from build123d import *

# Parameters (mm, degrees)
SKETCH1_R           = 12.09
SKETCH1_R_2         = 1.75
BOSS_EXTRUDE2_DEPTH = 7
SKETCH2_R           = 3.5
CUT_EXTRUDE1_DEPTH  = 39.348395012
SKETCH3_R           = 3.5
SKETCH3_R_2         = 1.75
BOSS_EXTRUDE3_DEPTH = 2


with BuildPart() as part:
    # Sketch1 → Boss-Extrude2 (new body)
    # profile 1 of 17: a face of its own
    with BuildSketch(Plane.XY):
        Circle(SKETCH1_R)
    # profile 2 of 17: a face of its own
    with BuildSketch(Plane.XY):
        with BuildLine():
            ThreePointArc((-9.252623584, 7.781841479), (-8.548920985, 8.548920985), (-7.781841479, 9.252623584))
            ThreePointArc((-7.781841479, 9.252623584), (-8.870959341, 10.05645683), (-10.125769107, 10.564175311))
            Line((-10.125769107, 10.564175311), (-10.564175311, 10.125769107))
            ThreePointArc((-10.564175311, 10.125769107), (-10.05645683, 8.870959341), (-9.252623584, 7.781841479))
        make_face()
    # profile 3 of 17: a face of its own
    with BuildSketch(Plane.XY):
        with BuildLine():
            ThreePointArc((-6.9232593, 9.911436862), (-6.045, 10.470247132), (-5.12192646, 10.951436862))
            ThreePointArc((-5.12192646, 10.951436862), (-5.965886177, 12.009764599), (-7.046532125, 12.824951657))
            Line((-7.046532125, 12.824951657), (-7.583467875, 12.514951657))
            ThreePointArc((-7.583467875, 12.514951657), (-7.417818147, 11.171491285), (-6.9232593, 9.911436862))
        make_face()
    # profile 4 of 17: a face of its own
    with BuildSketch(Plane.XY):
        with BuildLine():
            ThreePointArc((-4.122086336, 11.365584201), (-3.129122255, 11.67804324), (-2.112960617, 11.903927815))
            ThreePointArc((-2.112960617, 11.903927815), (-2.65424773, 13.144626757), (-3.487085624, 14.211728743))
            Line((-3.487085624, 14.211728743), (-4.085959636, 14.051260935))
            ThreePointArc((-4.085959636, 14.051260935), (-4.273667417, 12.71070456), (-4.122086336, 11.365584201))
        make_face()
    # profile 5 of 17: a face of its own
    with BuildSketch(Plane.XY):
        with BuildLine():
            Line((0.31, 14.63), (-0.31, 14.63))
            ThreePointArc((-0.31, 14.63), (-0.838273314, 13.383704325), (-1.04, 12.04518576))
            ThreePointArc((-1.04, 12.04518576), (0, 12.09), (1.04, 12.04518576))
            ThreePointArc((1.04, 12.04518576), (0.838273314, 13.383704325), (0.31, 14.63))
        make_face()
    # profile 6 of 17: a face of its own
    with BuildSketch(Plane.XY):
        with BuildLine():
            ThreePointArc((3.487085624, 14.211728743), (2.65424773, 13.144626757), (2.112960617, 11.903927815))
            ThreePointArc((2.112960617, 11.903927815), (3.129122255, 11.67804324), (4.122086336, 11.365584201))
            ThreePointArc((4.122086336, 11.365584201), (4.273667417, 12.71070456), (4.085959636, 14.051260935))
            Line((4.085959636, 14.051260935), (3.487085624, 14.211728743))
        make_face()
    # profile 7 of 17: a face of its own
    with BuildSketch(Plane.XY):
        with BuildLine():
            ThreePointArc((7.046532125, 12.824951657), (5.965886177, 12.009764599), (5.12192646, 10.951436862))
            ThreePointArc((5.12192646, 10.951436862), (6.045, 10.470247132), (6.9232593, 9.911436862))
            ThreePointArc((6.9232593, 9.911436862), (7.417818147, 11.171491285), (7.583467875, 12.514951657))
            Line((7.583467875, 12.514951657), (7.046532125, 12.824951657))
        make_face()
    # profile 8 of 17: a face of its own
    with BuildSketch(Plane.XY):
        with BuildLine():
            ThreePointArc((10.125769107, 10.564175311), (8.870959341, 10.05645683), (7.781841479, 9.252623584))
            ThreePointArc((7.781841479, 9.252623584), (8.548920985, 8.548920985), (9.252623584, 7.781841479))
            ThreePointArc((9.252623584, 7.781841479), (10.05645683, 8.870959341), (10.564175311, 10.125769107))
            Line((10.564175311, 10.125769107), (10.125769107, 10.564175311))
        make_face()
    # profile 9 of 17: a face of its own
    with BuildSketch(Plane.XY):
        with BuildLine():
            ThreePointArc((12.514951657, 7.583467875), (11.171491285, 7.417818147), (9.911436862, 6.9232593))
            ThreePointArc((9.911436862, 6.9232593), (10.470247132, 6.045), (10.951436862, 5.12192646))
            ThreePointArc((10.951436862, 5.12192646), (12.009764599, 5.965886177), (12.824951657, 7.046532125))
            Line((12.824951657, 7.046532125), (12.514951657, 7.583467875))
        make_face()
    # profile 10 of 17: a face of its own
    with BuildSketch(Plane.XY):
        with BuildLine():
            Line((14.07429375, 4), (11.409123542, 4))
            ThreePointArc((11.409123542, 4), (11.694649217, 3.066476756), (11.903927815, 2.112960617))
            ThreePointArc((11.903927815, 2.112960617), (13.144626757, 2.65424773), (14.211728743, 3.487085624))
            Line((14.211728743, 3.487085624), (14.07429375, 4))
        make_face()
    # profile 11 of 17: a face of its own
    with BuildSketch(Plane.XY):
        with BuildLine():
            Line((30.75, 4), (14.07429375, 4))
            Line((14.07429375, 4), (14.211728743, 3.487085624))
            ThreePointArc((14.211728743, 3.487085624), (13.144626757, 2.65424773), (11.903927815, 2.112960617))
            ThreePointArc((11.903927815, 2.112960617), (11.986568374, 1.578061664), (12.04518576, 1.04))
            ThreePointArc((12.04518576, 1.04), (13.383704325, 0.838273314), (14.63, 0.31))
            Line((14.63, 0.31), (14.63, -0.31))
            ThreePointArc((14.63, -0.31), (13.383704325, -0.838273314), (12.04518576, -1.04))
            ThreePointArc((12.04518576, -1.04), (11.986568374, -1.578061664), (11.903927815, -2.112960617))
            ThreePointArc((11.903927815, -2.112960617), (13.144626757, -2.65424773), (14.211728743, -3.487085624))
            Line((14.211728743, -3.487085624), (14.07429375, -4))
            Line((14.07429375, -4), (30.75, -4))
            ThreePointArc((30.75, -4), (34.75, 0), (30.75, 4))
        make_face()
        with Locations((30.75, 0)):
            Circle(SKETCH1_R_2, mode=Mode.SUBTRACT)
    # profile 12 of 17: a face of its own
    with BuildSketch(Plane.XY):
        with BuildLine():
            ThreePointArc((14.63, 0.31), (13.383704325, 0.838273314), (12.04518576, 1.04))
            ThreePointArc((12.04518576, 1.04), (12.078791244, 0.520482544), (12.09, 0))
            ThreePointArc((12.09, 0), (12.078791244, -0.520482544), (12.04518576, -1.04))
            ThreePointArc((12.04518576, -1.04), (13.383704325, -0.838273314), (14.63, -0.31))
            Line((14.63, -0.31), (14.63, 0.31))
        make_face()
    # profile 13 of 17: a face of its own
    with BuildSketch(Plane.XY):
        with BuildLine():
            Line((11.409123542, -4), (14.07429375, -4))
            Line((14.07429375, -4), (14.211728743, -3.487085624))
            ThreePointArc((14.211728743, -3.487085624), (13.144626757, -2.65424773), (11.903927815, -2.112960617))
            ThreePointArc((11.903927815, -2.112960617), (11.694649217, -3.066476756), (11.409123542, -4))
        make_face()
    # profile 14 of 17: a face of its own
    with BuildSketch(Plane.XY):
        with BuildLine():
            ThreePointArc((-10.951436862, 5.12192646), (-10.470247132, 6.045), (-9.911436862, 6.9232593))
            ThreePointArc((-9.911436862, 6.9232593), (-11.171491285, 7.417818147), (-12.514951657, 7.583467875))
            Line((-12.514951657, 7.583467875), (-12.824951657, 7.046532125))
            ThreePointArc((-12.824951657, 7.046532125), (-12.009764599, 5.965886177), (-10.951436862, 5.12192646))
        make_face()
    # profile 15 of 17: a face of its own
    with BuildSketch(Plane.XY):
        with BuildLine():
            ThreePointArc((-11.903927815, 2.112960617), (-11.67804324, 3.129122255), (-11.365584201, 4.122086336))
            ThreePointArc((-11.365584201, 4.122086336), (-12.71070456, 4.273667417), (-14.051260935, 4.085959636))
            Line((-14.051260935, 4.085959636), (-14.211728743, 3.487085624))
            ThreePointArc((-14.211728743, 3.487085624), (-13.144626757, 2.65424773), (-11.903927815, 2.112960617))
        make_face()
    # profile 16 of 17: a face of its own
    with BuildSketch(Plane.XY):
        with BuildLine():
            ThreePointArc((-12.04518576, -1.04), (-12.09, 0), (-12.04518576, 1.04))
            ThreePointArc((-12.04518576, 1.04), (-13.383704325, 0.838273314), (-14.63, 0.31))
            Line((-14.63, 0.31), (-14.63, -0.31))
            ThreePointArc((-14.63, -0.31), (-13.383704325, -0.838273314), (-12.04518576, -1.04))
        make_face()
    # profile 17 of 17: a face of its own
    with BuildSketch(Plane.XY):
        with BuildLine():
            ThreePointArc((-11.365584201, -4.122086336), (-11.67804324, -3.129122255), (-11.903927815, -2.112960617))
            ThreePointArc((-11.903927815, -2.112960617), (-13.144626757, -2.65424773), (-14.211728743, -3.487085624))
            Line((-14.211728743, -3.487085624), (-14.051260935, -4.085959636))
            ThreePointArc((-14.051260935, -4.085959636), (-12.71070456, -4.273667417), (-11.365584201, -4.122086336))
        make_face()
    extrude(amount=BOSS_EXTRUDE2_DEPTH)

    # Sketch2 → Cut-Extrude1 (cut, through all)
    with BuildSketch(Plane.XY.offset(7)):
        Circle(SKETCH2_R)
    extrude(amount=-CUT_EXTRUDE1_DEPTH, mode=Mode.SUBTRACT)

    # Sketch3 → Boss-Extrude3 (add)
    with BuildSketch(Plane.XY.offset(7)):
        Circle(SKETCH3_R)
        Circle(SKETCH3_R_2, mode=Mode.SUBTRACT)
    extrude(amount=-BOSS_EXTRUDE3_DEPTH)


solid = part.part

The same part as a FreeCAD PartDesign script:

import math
import FreeCAD as App
import Part
import Sketcher
Q = App.Units.Quantity

doc = App.newDocument("Part")
body = doc.addObject("PartDesign::Body", "Body")

sketch1 = doc.addObject("Sketcher::SketchObject", "Sketch")
body.addObject(sketch1)
sketch1.AttachmentSupport = (doc.XY_Plane, [""])
sketch1.MapMode = "FlatFace"
sketch1.addGeometry([
    Part.ArcOfCircle(Part.Circle(App.Vector(0, 0, 0), App.Vector(0, 0, 1), 12.1), math.radians(19.32), math.radians(25.07)),
    Part.ArcOfCircle(Part.Circle(App.Vector(8.1, 9.7, 0), App.Vector(0, 0, 1), 5.4), math.radians(-59), math.radians(-30)),
    Part.LineSegment(App.Vector(12.8, 7, 0), App.Vector(12.5, 7.6, 0)),
    Part.ArcOfCircle(Part.Circle(App.Vector(12.5, 2.2, 0), App.Vector(0, 0, 1), 5.4), math.radians(90), math.radians(119)),
    Part.ArcOfCircle(Part.Circle(App.Vector(0, 0, 0), App.Vector(0, 0, 1), 12.1), math.radians(34.93), math.radians(40.07)),
    Part.ArcOfCircle(Part.Circle(App.Vector(5.3, 11.5, 0), App.Vector(0, 0, 1), 5.4), math.radians(-44), math.radians(-15)),
    Part.LineSegment(App.Vector(10.6, 10.1, 0), App.Vector(10.1, 10.6, 0)),
    Part.ArcOfCircle(Part.Circle(App.Vector(11.5, 5.3, 0), App.Vector(0, 0, 1), 5.4), math.radians(105), math.radians(134)),
    Part.ArcOfCircle(Part.Circle(App.Vector(0, 0, 0), App.Vector(0, 0, 1), 12.1), math.radians(49.93), math.radians(55.07)),
    Part.ArcOfCircle(Part.Circle(App.Vector(2.2, 12.5, 0), App.Vector(0, 0, 1), 5.4), math.radians(-29), math.radians(0)),
    Part.LineSegment(App.Vector(7.6, 12.5, 0), App.Vector(7, 12.8, 0)),
    Part.ArcOfCircle(Part.Circle(App.Vector(9.7, 8.1, 0), App.Vector(0, 0, 1), 5.4), math.radians(120), math.radians(149)),
    Part.ArcOfCircle(Part.Circle(App.Vector(0, 0, 0), App.Vector(0, 0, 1), 12.1), math.radians(64.93), math.radians(70.07)),
    Part.ArcOfCircle(Part.Circle(App.Vector(-1.1, 12.6, 0), App.Vector(0, 0, 1), 5.4), math.radians(-14), math.radians(15)),
    Part.LineSegment(App.Vector(4.1, 14.1, 0), App.Vector(3.5, 14.2, 0)),
    Part.ArcOfCircle(Part.Circle(App.Vector(7.3, 10.4, 0), App.Vector(0, 0, 1), 5.4), math.radians(135), math.radians(164)),
    Part.ArcOfCircle(Part.Circle(App.Vector(0, 0, 0), App.Vector(0, 0, 1), 12.1), math.radians(79.93), math.radians(85.07)),
    Part.ArcOfCircle(Part.Circle(App.Vector(-4.4, 11.9, 0), App.Vector(0, 0, 1), 5.4), math.radians(1), math.radians(30)),
    Part.LineSegment(App.Vector(0.3, 14.6, 0), App.Vector(-0.3, 14.6, 0)),
    Part.ArcOfCircle(Part.Circle(App.Vector(4.4, 11.9, 0), App.Vector(0, 0, 1), 5.4), math.radians(150), math.radians(179)),
    Part.ArcOfCircle(Part.Circle(App.Vector(0, 0, 0), App.Vector(0, 0, 1), 12.1), math.radians(94.93), math.radians(100.07)),
    Part.ArcOfCircle(Part.Circle(App.Vector(-7.3, 10.4, 0), App.Vector(0, 0, 1), 5.4), math.radians(16), math.radians(45)),
    Part.LineSegment(App.Vector(-3.5, 14.2, 0), App.Vector(-4.1, 14.1, 0)),
    Part.ArcOfCircle(Part.Circle(App.Vector(1.1, 12.6, 0), App.Vector(0, 0, 1), 5.4), math.radians(165), math.radians(194)),
    Part.ArcOfCircle(Part.Circle(App.Vector(0, 0, 0), App.Vector(0, 0, 1), 12.1), math.radians(109.93), math.radians(115.07)),
    Part.ArcOfCircle(Part.Circle(App.Vector(-9.7, 8.1, 0), App.Vector(0, 0, 1), 5.4), math.radians(31), math.radians(60)),
    Part.LineSegment(App.Vector(-7, 12.8, 0), App.Vector(-7.6, 12.5, 0)),
    Part.ArcOfCircle(Part.Circle(App.Vector(-2.2, 12.5, 0), App.Vector(0, 0, 1), 5.4), math.radians(180), math.radians(209)),
    Part.ArcOfCircle(Part.Circle(App.Vector(0, 0, 0), App.Vector(0, 0, 1), 12.1), math.radians(124.93), math.radians(130.07)),
    Part.ArcOfCircle(Part.Circle(App.Vector(-11.5, 5.3, 0), App.Vector(0, 0, 1), 5.4), math.radians(46), math.radians(75)),
    Part.LineSegment(App.Vector(-10.1, 10.6, 0), App.Vector(-10.6, 10.1, 0)),
    Part.ArcOfCircle(Part.Circle(App.Vector(-5.3, 11.5, 0), App.Vector(0, 0, 1), 5.4), math.radians(-165), math.radians(-136)),
    Part.ArcOfCircle(Part.Circle(App.Vector(0, 0, 0), App.Vector(0, 0, 1), 12.1), math.radians(139.93), math.radians(145.07)),
    Part.ArcOfCircle(Part.Circle(App.Vector(-12.5, 2.2, 0), App.Vector(0, 0, 1), 5.4), math.radians(61), math.radians(90)),
    Part.LineSegment(App.Vector(-12.5, 7.6, 0), App.Vector(-12.8, 7, 0)),
    Part.ArcOfCircle(Part.Circle(App.Vector(-8.1, 9.7, 0), App.Vector(0, 0, 1), 5.4), math.radians(-150), math.radians(-121)),
    Part.ArcOfCircle(Part.Circle(App.Vector(0, 0, 0), App.Vector(0, 0, 1), 12.1), math.radians(154.93), math.radians(160.07)),
    Part.ArcOfCircle(Part.Circle(App.Vector(-12.6, -1.1, 0), App.Vector(0, 0, 1), 5.4), math.radians(76), math.radians(105)),
    Part.LineSegment(App.Vector(-14.1, 4.1, 0), App.Vector(-14.2, 3.5, 0)),
    Part.ArcOfCircle(Part.Circle(App.Vector(-10.4, 7.3, 0), App.Vector(0, 0, 1), 5.4), math.radians(-135), math.radians(-106)),
    Part.ArcOfCircle(Part.Circle(App.Vector(0, 0, 0), App.Vector(0, 0, 1), 12.1), math.radians(169.93), math.radians(175.07)),
    Part.ArcOfCircle(Part.Circle(App.Vector(-11.9, -4.4, 0), App.Vector(0, 0, 1), 5.4), math.radians(91), math.radians(120)),
    Part.LineSegment(App.Vector(-14.6, 0.3, 0), App.Vector(-14.6, -0.3, 0)),
    Part.ArcOfCircle(Part.Circle(App.Vector(-11.9, 4.4, 0), App.Vector(0, 0, 1), 5.4), math.radians(-120), math.radians(-91)),
    Part.ArcOfCircle(Part.Circle(App.Vector(0, 0, 0), App.Vector(0, 0, 1), 12.1), math.radians(-175.07), math.radians(-169.93)),
    Part.ArcOfCircle(Part.Circle(App.Vector(-10.4, -7.3, 0), App.Vector(0, 0, 1), 5.4), math.radians(106), math.radians(135)),
    Part.LineSegment(App.Vector(-14.2, -3.5, 0), App.Vector(-14.1, -4.1, 0)),
    Part.ArcOfCircle(Part.Circle(App.Vector(-12.6, 1.1, 0), App.Vector(0, 0, 1), 5.4), math.radians(-105), math.radians(-76)),
    Part.ArcOfCircle(Part.Circle(App.Vector(0, 0, 0), App.Vector(0, 0, 1), 12.1), math.radians(-160), math.radians(-19)),
    Part.LineSegment(App.Vector(11.4, -4, 0), App.Vector(30.8, -4, 0)),
    Part.ArcOfCircle(Part.Circle(App.Vector(30.8, 0, 0), App.Vector(0, 0, 1), 4), math.radians(-90), math.radians(90)),
    Part.LineSegment(App.Vector(30.8, 4, 0), App.Vector(11.4, 4, 0)),
    Part.Circle(App.Vector(30.8, 0, 0), App.Vector(0, 0, 1), 1.8),
], False)
sketch1.addConstraint([
    Sketcher.Constraint("Coincident", 0, 2, 1, 1),
    Sketcher.Constraint("Coincident", 1, 2, 2, 1),
    Sketcher.Constraint("Coincident", 2, 2, 3, 1),
    Sketcher.Constraint("Coincident", 3, 2, 4, 1),
    Sketcher.Constraint("Coincident", 4, 2, 5, 1),
    Sketcher.Constraint("Coincident", 5, 2, 6, 1),
    Sketcher.Constraint("Coincident", 6, 2, 7, 1),
    Sketcher.Constraint("Coincident", 7, 2, 8, 1),
    Sketcher.Constraint("Coincident", 8, 2, 9, 1),
    Sketcher.Constraint("Coincident", 9, 2, 10, 1),
    Sketcher.Constraint("Coincident", 10, 2, 11, 1),
    Sketcher.Constraint("Coincident", 11, 2, 12, 1),
    Sketcher.Constraint("Coincident", 12, 2, 13, 1),
    Sketcher.Constraint("Coincident", 13, 2, 14, 1),
    Sketcher.Constraint("Coincident", 14, 2, 15, 1),
    Sketcher.Constraint("Coincident", 15, 2, 16, 1),
    Sketcher.Constraint("Coincident", 16, 2, 17, 1),
    Sketcher.Constraint("Coincident", 17, 2, 18, 1),
    Sketcher.Constraint("Coincident", 18, 2, 19, 1),
    Sketcher.Constraint("Coincident", 19, 2, 20, 1),
    Sketcher.Constraint("Coincident", 20, 2, 21, 1),
    Sketcher.Constraint("Coincident", 21, 2, 22, 1),
    Sketcher.Constraint("Coincident", 22, 2, 23, 1),
    Sketcher.Constraint("Coincident", 23, 2, 24, 1),
    Sketcher.Constraint("Coincident", 24, 2, 25, 1),
    Sketcher.Constraint("Coincident", 25, 2, 26, 1),
    Sketcher.Constraint("Coincident", 26, 2, 27, 1),
    Sketcher.Constraint("Coincident", 27, 2, 28, 1),
    Sketcher.Constraint("Coincident", 28, 2, 29, 1),
    Sketcher.Constraint("Coincident", 29, 2, 30, 1),
    Sketcher.Constraint("Coincident", 30, 2, 31, 1),
    Sketcher.Constraint("Coincident", 31, 2, 32, 1),
    Sketcher.Constraint("Coincident", 32, 2, 33, 1),
    Sketcher.Constraint("Coincident", 33, 2, 34, 1),
    Sketcher.Constraint("Coincident", 34, 2, 35, 1),
    Sketcher.Constraint("Coincident", 35, 2, 36, 1),
    Sketcher.Constraint("Coincident", 36, 2, 37, 1),
    Sketcher.Constraint("Coincident", 37, 2, 38, 1),
    Sketcher.Constraint("Coincident", 38, 2, 39, 1),
    Sketcher.Constraint("Coincident", 39, 2, 40, 1),
    Sketcher.Constraint("Coincident", 40, 2, 41, 1),
    Sketcher.Constraint("Coincident", 41, 2, 42, 1),
    Sketcher.Constraint("Coincident", 42, 2, 43, 1),
    Sketcher.Constraint("Coincident", 43, 2, 44, 1),
    Sketcher.Constraint("Coincident", 44, 2, 45, 1),
    Sketcher.Constraint("Coincident", 45, 2, 46, 1),
    Sketcher.Constraint("Coincident", 46, 2, 47, 1),
    Sketcher.Constraint("Coincident", 47, 2, 48, 1),
    Sketcher.Constraint("Coincident", 48, 2, 49, 1),
    Sketcher.Constraint("Tangent", 49, 2, 50, 1),
    Sketcher.Constraint("Tangent", 50, 2, 51, 1),
    Sketcher.Constraint("Coincident", 51, 2, 0, 1),
    Sketcher.Constraint("Horizontal", 18),
    Sketcher.Constraint("Vertical", 42),
    Sketcher.Constraint("Horizontal", 49),
    Sketcher.Constraint("Horizontal", 51),
    Sketcher.Constraint("Coincident", 0, 3, -1, 1),
    Sketcher.Constraint("Coincident", 4, 3, -1, 1),
    Sketcher.Constraint("Coincident", 8, 3, -1, 1),
    Sketcher.Constraint("Coincident", 12, 3, -1, 1),
    Sketcher.Constraint("Coincident", 16, 3, -1, 1),
    Sketcher.Constraint("Coincident", 20, 3, -1, 1),
    Sketcher.Constraint("Coincident", 24, 3, -1, 1),
    Sketcher.Constraint("Coincident", 28, 3, -1, 1),
    Sketcher.Constraint("Coincident", 32, 3, -1, 1),
    Sketcher.Constraint("Coincident", 36, 3, -1, 1),
    Sketcher.Constraint("Coincident", 40, 3, -1, 1),
    Sketcher.Constraint("Coincident", 44, 3, -1, 1),
    Sketcher.Constraint("Coincident", 48, 3, -1, 1),
    Sketcher.Constraint("Coincident", 52, 3, 50, 3),
    Sketcher.Constraint("Equal", 1, 3),
    Sketcher.Constraint("Equal", 0, 4),
    Sketcher.Constraint("Equal", 3, 5),
    Sketcher.Constraint("Equal", 5, 7),
    Sketcher.Constraint("Equal", 4, 8),
    Sketcher.Constraint("Equal", 7, 9),
    Sketcher.Constraint("Equal", 9, 11),
    Sketcher.Constraint("Equal", 8, 12),
    Sketcher.Constraint("Equal", 11, 13),
    Sketcher.Constraint("Equal", 13, 15),
    Sketcher.Constraint("Equal", 12, 16),
    Sketcher.Constraint("Equal", 15, 17),
    Sketcher.Constraint("Equal", 17, 19),
    Sketcher.Constraint("Equal", 16, 20),
    Sketcher.Constraint("Equal", 19, 21),
    Sketcher.Constraint("Equal", 21, 23),
    Sketcher.Constraint("Equal", 20, 24),
    Sketcher.Constraint("Equal", 23, 25),
    Sketcher.Constraint("Equal", 25, 27),
    Sketcher.Constraint("Equal", 24, 28),
    Sketcher.Constraint("Equal", 27, 29),
    Sketcher.Constraint("Equal", 29, 31),
    Sketcher.Constraint("Equal", 28, 32),
    Sketcher.Constraint("Equal", 31, 33),
    Sketcher.Constraint("Equal", 33, 35),
    Sketcher.Constraint("Equal", 32, 36),
    Sketcher.Constraint("Equal", 35, 37),
    Sketcher.Constraint("Equal", 37, 39),
    Sketcher.Constraint("Equal", 36, 40),
    Sketcher.Constraint("Equal", 39, 41),
    Sketcher.Constraint("Equal", 41, 43),
    Sketcher.Constraint("Equal", 40, 44),
    Sketcher.Constraint("Equal", 43, 45),
    Sketcher.Constraint("Equal", 45, 47),
    Sketcher.Constraint("Equal", 44, 48),
    Sketcher.Constraint("Symmetric", 17, 3, 19, 3, -2),
    Sketcher.Constraint("Symmetric", 15, 3, 21, 3, -2),
    Sketcher.Constraint("Symmetric", 13, 3, 23, 3, -2),
    Sketcher.Constraint("Symmetric", 11, 3, 25, 3, -2),
    Sketcher.Constraint("Symmetric", 9, 3, 27, 3, -2),
    Sketcher.Constraint("Symmetric", 7, 3, 29, 3, -2),
    Sketcher.Constraint("Symmetric", 5, 3, 31, 3, -2),
    Sketcher.Constraint("Symmetric", 3, 3, 33, 3, -2),
    Sketcher.Constraint("Symmetric", 1, 3, 35, 3, -2),
    Sketcher.Constraint("Symmetric", 41, 3, 43, 3, -1),
    Sketcher.Constraint("Symmetric", 39, 3, 45, 3, -1),
    Sketcher.Constraint("Symmetric", 37, 3, 47, 3, -1),
    Sketcher.Constraint("PointOnObject", 50, 3, -1),
    Sketcher.Constraint("Perpendicular", 2, 26),
    Sketcher.Constraint("Perpendicular", 6, 30),
    Sketcher.Constraint("Perpendicular", 10, 34),
    Sketcher.Constraint("Perpendicular", 14, 38),
    Sketcher.Constraint("Perpendicular", 22, 46),
    Sketcher.Constraint("Horizontal", 14, 2, 21, 2),
    Sketcher.Constraint("Horizontal", 13, 2, 22, 2),
    Sketcher.Constraint("Horizontal", 10, 2, 25, 2),
    Sketcher.Constraint("Horizontal", 9, 2, 26, 2),
    Sketcher.Constraint("Horizontal", 6, 2, 29, 2),
    Sketcher.Constraint("Horizontal", 5, 2, 30, 2),
    Sketcher.Constraint("Horizontal", 1, 2, 34, 2),
    Sketcher.Constraint("Vertical", 38, 2, 45, 2),
    Sketcher.Constraint("Equal", 18, 42),
    Sketcher.Constraint("Equal", 2, 6),
    Sketcher.Constraint("Equal", 6, 10),
    Sketcher.Constraint("Equal", 10, 14),
    Sketcher.Constraint("Equal", 34, 38),
    Sketcher.Constraint("Radius", 50, 4.0),
    Sketcher.Constraint("Diameter", 52, 3.5),
    Sketcher.Constraint("Radius", 1, 5.4),
    Sketcher.Constraint("Angle", 2, Q("120 deg")),
    Sketcher.Constraint("Angle", 14, Q("165 deg")),
    Sketcher.Constraint("Radius", 0, 12.09),
    Sketcher.Constraint("DistanceX", 18, 2, 18, 1, 0.62),
    Sketcher.Constraint("Distance", 2, 0.62),
    Sketcher.Constraint("DistanceX", -1, 1, 50, 3, 30.75),
    Sketcher.Constraint("DistanceX", -1, 1, 16, 2, 1.04),
    Sketcher.Constraint("DistanceY", -1, 1, 17, 2, 14.63),
    Sketcher.Constraint("DistanceY", -1, 1, 40, 2, 1.04),
    Sketcher.Constraint("DistanceX", 41, 2, -1, 1, 14.63),
    Sketcher.Constraint("DistanceY", -1, 1, 1, 3, 9.732559),
    Sketcher.Constraint("DistanceX", -1, 1, 3, 3, 12.49883),
    Sketcher.Constraint("DistanceY", -1, 1, 3, 3, 2.183492),
    Sketcher.Constraint("DistanceX", -1, 1, 9, 3, 2.183492),
    Sketcher.Constraint("DistanceY", -1, 1, 9, 3, 12.49883),
    Sketcher.Constraint("DistanceX", -1, 1, 11, 3, 9.732559),
    Sketcher.Constraint("DistanceY", -1, 1, 15, 3, 10.38197),
    Sketcher.Constraint("DistanceX", 39, 3, -1, 1, 10.38197),
    Sketcher.Constraint("DistanceX", -1, 1, 1, 2, 12.824952),
    Sketcher.Constraint("DistanceY", -1, 1, 4, 2, 7.781841),
    Sketcher.Constraint("DistanceY", -1, 1, 5, 2, 10.125769),
    Sketcher.Constraint("DistanceX", -1, 1, 6, 2, 10.125769),
    Sketcher.Constraint("DistanceX", -1, 1, 7, 2, 7.781841),
    Sketcher.Constraint("DistanceY", -1, 1, 9, 2, 12.514952),
    Sketcher.Constraint("DistanceX", -1, 1, 13, 2, 4.08596),
    Sketcher.Constraint("DistanceY", -1, 1, 13, 2, 14.051261),
    Sketcher.Constraint("DistanceX", 37, 2, -1, 1, 14.051261),
    Sketcher.Constraint("DistanceY", -1, 1, 37, 2, 4.08596),
    Sketcher.Constraint("DistanceX", 13, 3, -1, 1, 1.125844),
    Sketcher.Constraint("DistanceX", 37, 3, -1, 1, 12.638072),
])
pad1 = doc.addObject("PartDesign::Pad", "Pad")
body.addObject(pad1)
pad1.Profile = sketch1
pad1.Length = 7

sketch2 = doc.addObject("Sketcher::SketchObject", "Sketch001")
body.addObject(sketch2)
sketch2.AttachmentSupport = (doc.XY_Plane, [""])
sketch2.MapMode = "FlatFace"
sketch2.AttachmentOffset = App.Placement(App.Vector(0, 0, 7), App.Rotation())
sketch2.addGeometry(Part.Circle(App.Vector(0, 0, 0), App.Vector(0, 0, 1), 3.5), False)
sketch2.addConstraint([
    Sketcher.Constraint("Coincident", 0, 3, -1, 1),
    Sketcher.Constraint("Diameter", 0, 7.0),
])
pocket1 = doc.addObject("PartDesign::Pocket", "Pocket")
body.addObject(pocket1)
pocket1.Profile = sketch2
pocket1.Type = "ThroughAll"

sketch3 = doc.addObject("Sketcher::SketchObject", "Sketch002")
body.addObject(sketch3)
sketch3.AttachmentSupport = (doc.XY_Plane, [""])
sketch3.MapMode = "FlatFace"
sketch3.AttachmentOffset = App.Placement(App.Vector(0, 0, 7), App.Rotation())
sketch3.addGeometry([
    Part.Circle(App.Vector(0, 0, 0), App.Vector(0, 0, 1), 3.5),
    Part.Circle(App.Vector(0, 0, 0), App.Vector(0, 0, 1), 1.8),
], False)
sketch3.addConstraint([
    Sketcher.Constraint("Coincident", 0, 3, -1, 1),
    Sketcher.Constraint("Coincident", 1, 3, -1, 1),
    Sketcher.Constraint("Diameter", 0, 7.0),
    Sketcher.Constraint("Diameter", 1, 3.5),
])
pad2 = doc.addObject("PartDesign::Pad", "Pad001")
body.addObject(pad2)
pad2.Profile = sketch3
pad2.Length = 2
pad2.Reversed = True

doc.recompute()
